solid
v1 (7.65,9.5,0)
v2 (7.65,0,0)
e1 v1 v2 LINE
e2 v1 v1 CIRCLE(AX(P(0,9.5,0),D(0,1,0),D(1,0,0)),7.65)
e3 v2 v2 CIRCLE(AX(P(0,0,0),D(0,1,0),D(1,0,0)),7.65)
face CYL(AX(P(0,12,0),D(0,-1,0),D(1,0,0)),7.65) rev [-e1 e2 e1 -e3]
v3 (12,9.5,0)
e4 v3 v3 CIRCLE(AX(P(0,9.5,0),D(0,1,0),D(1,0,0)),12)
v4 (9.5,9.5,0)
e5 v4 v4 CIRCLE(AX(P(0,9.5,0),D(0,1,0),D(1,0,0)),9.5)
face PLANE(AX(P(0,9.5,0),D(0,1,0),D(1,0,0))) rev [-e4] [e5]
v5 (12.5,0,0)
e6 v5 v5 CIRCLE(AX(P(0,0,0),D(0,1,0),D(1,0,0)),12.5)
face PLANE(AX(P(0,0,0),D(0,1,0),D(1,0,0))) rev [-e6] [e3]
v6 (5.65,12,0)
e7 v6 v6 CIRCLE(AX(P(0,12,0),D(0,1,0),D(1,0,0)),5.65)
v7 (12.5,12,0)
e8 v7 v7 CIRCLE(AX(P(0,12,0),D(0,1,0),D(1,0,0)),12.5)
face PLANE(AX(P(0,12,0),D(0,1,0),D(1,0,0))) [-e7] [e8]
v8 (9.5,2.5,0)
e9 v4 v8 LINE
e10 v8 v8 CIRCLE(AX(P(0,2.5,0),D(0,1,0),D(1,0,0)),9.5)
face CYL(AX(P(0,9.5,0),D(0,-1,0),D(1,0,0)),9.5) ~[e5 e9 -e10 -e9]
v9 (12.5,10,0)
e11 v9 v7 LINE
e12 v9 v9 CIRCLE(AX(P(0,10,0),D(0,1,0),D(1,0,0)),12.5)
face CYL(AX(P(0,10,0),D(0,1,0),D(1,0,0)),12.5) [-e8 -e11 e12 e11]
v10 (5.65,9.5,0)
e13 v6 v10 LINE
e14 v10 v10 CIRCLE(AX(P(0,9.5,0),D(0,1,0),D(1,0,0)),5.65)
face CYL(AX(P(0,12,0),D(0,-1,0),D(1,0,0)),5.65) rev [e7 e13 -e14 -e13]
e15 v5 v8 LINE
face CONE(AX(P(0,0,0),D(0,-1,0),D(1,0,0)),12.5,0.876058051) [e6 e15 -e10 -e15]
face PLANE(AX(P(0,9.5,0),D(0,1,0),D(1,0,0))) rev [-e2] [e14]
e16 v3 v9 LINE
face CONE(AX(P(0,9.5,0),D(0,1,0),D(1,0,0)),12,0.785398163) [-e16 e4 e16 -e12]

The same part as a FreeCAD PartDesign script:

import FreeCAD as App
import Part
import Sketcher
from FreeCAD import Vector

doc = App.newDocument("Part")
params = doc.addObject("Spreadsheet::Sheet", "Params")
for row, (alias, value) in enumerate([
    ("sketch1_width", "2 mm"),
    ("sketch1_height", "7 mm"),
    ("sketch1_width2", "2.5 mm"),
    ("revolution_angle", "360 deg"),
], start=1):
    params.set(f"A{row}", alias)
    params.set(f"B{row}", "=" + value)
    params.setAlias(f"B{row}", alias)

body = doc.addObject("PartDesign::Body", "Body")

# Sketch on XY plane
sketch1 = body.newObject("Sketcher::SketchObject", "Sketch")
sketch1.AttachmentSupport = (doc.getObject("XY_Plane"), [""])
sketch1.MapMode = "FlatFace"
sketch1.addGeometry([
    Part.LineSegment(Vector(7.7, 9.5, 0), Vector(7.7, 0, 0)),  # 0
    Part.LineSegment(Vector(7.7, 0, 0), Vector(12.5, 0, 0)),  # 1
    Part.LineSegment(Vector(12.5, 0, 0), Vector(9.5, 2.5, 0)),  # 2
    Part.LineSegment(Vector(9.5, 2.5, 0), Vector(9.5, 9.5, 0)),  # 3
    Part.LineSegment(Vector(9.5, 9.5, 0), Vector(12, 9.5, 0)),  # 4
    Part.LineSegment(Vector(12, 9.5, 0), Vector(12.5, 10, 0)),  # 5
    Part.LineSegment(Vector(12.5, 10, 0), Vector(12.5, 12, 0)),  # 6
    Part.LineSegment(Vector(12.5, 12, 0), Vector(5.7, 12, 0)),  # 7
    Part.LineSegment(Vector(5.7, 12, 0), Vector(5.7, 9.5, 0)),  # 8
    Part.LineSegment(Vector(5.7, 9.5, 0), Vector(7.7, 9.5, 0)),  # 9
], False)
sketch1.addConstraint([
    Sketcher.Constraint("Coincident", 0, 2, 1, 1),
    Sketcher.Constraint("Coincident", 1, 2, 2, 1),
    Sketcher.Constraint("Coincident", 2, 2, 3, 1),
    Sketcher.Constraint("Coincident", 3, 2, 4, 1),
    Sketcher.Constraint("Coincident", 4, 2, 5, 1),
    Sketcher.Constraint("Coincident", 5, 2, 6, 1),
    Sketcher.Constraint("Coincident", 6, 2, 7, 1),
    Sketcher.Constraint("Coincident", 7, 2, 8, 1),
    Sketcher.Constraint("Coincident", 8, 2, 9, 1),
    Sketcher.Constraint("Coincident", 9, 2, 0, 1),
    Sketcher.Constraint("Vertical", 0),
    Sketcher.Constraint("Horizontal", 1),
    Sketcher.Constraint("Vertical", 3),
    Sketcher.Constraint("Horizontal", 4),
    Sketcher.Constraint("Vertical", 6),
    Sketcher.Constraint("Horizontal", 7),
    Sketcher.Constraint("Vertical", 8),
    Sketcher.Constraint("Horizontal", 9),
    Sketcher.Constraint("PointOnObject", 0, 2, -1),
    Sketcher.Constraint("Horizontal", 4, 2, 8, 2),
    Sketcher.Constraint("Vertical", 1, 2, 5, 2),
    Sketcher.Constraint("Equal", 9, 6),
    Sketcher.Constraint("Equal", 4, 8),
    Sketcher.Constraint("DistanceX", 9, 1, 9, 2, 2.0),
    Sketcher.Constraint("DistanceY", 3, 1, 3, 2, 7.0),
    Sketcher.Constraint("DistanceX", 4, 1, 4, 2, 2.5),
    Sketcher.Constraint("DistanceX", -1, 1, 4, 2, 12.0),
    Sketcher.Constraint("DistanceY", -1, 1, 6, 2, 12.0),
    Sketcher.Constraint("DistanceX", 2, 2, 1, 2, 3.0),
    Sketcher.Constraint("DistanceX", -1, 1, 0, 2, 7.65),
])
sketch1.setExpression("Constraints[23]", "Params.sketch1_width")
sketch1.setExpression("Constraints[24]", "Params.sketch1_height")
sketch1.setExpression("Constraints[25]", "Params.sketch1_width2")
revolution = body.newObject("PartDesign::Revolution", "Revolution")
revolution.Profile = sketch1
revolution.ReferenceAxis = (sketch1, ["V_Axis"])
revolution.setExpression("Angle", "Params.revolution_angle")

doc.recompute()
